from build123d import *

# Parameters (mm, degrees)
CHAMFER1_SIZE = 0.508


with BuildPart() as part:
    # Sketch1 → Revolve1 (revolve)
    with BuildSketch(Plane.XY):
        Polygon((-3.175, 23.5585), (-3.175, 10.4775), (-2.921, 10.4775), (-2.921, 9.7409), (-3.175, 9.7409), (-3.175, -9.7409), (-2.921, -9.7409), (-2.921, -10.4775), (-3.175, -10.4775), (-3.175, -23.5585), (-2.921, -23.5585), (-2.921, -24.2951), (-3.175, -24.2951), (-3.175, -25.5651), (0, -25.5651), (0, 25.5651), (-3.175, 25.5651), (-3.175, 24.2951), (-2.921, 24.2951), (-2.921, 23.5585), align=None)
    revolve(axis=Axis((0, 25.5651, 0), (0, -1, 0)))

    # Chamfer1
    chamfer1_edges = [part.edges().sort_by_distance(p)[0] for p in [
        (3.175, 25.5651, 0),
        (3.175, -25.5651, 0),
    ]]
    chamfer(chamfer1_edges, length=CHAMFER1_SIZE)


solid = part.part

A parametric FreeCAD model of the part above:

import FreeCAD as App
import Part
import Sketcher
from FreeCAD import Vector
Q = App.Units.Quantity


def edges_at(feature, points):
    """Names of the edges that pass closest to the given points."""
    edges = feature.Shape.Edges
    near = lambda p: min(range(len(edges)), key=lambda i: edges[i].distToShape(Part.Vertex(*p))[0])
    return sorted({f"Edge{near(p) + 1}" for p in points})


def add_polygon(sketch, points):
    """Adds a closed chain of lines whose ends are joined by coincident constraints."""
    first, n = sketch.GeometryCount, len(points)
    for a, b in zip(points, points[1:] + points[:1]):
        sketch.addGeometry(Part.LineSegment(App.Vector(*a, 0), App.Vector(*b, 0)), False)
    for i in range(n):
        sketch.addConstraint(Sketcher.Constraint("Coincident", first + i, 2, first + (i + 1) % n, 1))

doc = App.newDocument("Part")
params = doc.addObject("Spreadsheet::Sheet", "Params")
for row, (alias, value) in enumerate([
    ("sketch1_width", "0.01 in"),
    ("sketch1_height", "0.05 in"),
    ("sketch1_width2", "0.125 in"),
    ("sketch1_height2", "0.515 in"),
    ("sketch1_height3", "0.029 in"),
    ("revolution_angle", "360 deg"),
    ("chamfer_size", "0.02 in"),
], start=1):
    params.set(f"A{row}", alias)
    params.set(f"B{row}", "=" + value)
    params.setAlias(f"B{row}", alias)

body = doc.addObject("PartDesign::Body", "Body")

# Sketch on XY plane
sketch1 = body.newObject("Sketcher::SketchObject", "Sketch")
sketch1.AttachmentSupport = (doc.getObject("XY_Plane"), [""])
sketch1.MapMode = "FlatFace"
add_polygon(sketch1, [(-3.175, 23.5585), (-3.175, 10.4775), (-2.921, 10.4775), (-2.921, 9.7409), (-3.175, 9.7409), (-3.175, -9.7409), (-2.921, -9.7409), (-2.921, -10.4775), (-3.175, -10.4775), (-3.175, -23.5585), (-2.921, -23.5585), (-2.921, -24.2951), (-3.175, -24.2951), (-3.175, -25.5651), (0, -25.5651), (0, 25.5651), (-3.175, 25.5651), (-3.175, 24.2951), (-2.921, 24.2951), (-2.921, 23.5585)])  # lines 0-19
sketch1.addConstraint([
    Sketcher.Constraint("Vertical", 0),
    Sketcher.Constraint("Horizontal", 1),
    Sketcher.Constraint("Vertical", 2),
    Sketcher.Constraint("Horizontal", 3),
    Sketcher.Constraint("Vertical", 4),
    Sketcher.Constraint("Horizontal", 5),
    Sketcher.Constraint("Vertical", 6),
    Sketcher.Constraint("Horizontal", 7),
    Sketcher.Constraint("Vertical", 8),
    Sketcher.Constraint("Horizontal", 9),
    Sketcher.Constraint("Vertical", 10),
    Sketcher.Constraint("Horizontal", 11),
    Sketcher.Constraint("Vertical", 12),
    Sketcher.Constraint("Horizontal", 13),
    Sketcher.Constraint("Vertical", 14),
    Sketcher.Constraint("Horizontal", 15),
    Sketcher.Constraint("Vertical", 16),
    Sketcher.Constraint("Horizontal", 17),
    Sketcher.Constraint("Vertical", 18),
    Sketcher.Constraint("Horizontal", 19),
    Sketcher.Constraint("Symmetric", 13, 2, 14, 2, -1, 1),
    Sketcher.Constraint("Symmetric", 2, 2, 5, 2, -1),
    Sketcher.Constraint("Symmetric", 0, 2, 7, 2, -1),
    Sketcher.Constraint("Symmetric", 11, 2, 16, 2, -1),
    Sketcher.Constraint("Symmetric", 9, 2, 18, 2, -1),
    Sketcher.Constraint("Vertical", 0, 2, 3, 2),
    Sketcher.Constraint("Vertical", 6, 2, 9, 2),
    Sketcher.Constraint("Vertical", 8, 2, 11, 2),
    Sketcher.Constraint("Equal", 6, 10),
    Sketcher.Constraint("DistanceX", 1, 1, 1, 2, Q("0.01 in")),
    Sketcher.Constraint("DistanceY", 12, 2, 12, 1, Q("0.05 in")),
    Sketcher.Constraint("DistanceX", 13, 1, 13, 2, Q("0.125 in")),
    Sketcher.Constraint("DistanceY", 0, 2, 0, 1, Q("0.515 in")),
    Sketcher.Constraint("DistanceY", 2, 2, 2, 1, Q("0.029 in")),
    Sketcher.Constraint("DistanceY", 4, 2, 4, 1, Q("0.767 in")),
])
sketch1.setExpression("Constraints[49]", "Params.sketch1_width")
sketch1.setExpression("Constraints[50]", "Params.sketch1_height")
sketch1.setExpression("Constraints[51]", "Params.sketch1_width2")
sketch1.setExpression("Constraints[52]", "Params.sketch1_height2")
sketch1.setExpression("Constraints[53]", "Params.sketch1_height3")
revolution = body.newObject("PartDesign::Revolution", "Revolution")
revolution.Profile = sketch1
revolution.ReferenceAxis = (sketch1, ["V_Axis"])
revolution.setExpression("Angle", "Params.revolution_angle")
doc.recompute()

chamfer = body.newObject("PartDesign::Chamfer", "Chamfer")
chamfer.Base = (revolution, edges_at(revolution, [(3.175, 25.565, 0), (3.175, -25.565, 0)]))
chamfer.setExpression("Size", "Params.chamfer_size")

doc.recompute()
